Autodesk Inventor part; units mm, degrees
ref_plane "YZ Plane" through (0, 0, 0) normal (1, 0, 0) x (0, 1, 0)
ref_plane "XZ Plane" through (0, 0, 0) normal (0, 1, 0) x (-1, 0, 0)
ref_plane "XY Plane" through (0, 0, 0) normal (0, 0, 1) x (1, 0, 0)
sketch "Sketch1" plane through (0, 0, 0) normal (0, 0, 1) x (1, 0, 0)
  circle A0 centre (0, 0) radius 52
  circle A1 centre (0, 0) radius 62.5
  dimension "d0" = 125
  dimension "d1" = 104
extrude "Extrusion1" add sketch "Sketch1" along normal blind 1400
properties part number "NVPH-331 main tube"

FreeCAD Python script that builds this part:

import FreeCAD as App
import Part
import Sketcher
from FreeCAD import Vector
Q = App.Units.Quantity

doc = App.newDocument("Part")
body = doc.addObject("PartDesign::Body", "Body")

# Sketch on XY plane
sketch1 = body.newObject("Sketcher::SketchObject", "Sketch")
sketch1.AttachmentSupport = (doc.getObject("XY_Plane"), [""])
sketch1.MapMode = "FlatFace"
sketch1.addGeometry([
    Part.Circle(Vector(0, 0, 0), Vector(0, 0, 1), 62),
    Part.Circle(Vector(0, 0, 0), Vector(0, 0, 1), 52),
], False)
sketch1.addConstraint([
    Sketcher.Constraint("Coincident", 0, 3, -1, 1),
    Sketcher.Constraint("Coincident", 1, 3, -1, 1),
    Sketcher.Constraint("Diameter", 0, Q("125 mm")),
    Sketcher.Constraint("Diameter", 1, Q("104 mm")),
])
pad1 = body.newObject("PartDesign::Pad", "Pad")
pad1.Profile = sketch1
pad1.Length = 1400

doc.recompute()
